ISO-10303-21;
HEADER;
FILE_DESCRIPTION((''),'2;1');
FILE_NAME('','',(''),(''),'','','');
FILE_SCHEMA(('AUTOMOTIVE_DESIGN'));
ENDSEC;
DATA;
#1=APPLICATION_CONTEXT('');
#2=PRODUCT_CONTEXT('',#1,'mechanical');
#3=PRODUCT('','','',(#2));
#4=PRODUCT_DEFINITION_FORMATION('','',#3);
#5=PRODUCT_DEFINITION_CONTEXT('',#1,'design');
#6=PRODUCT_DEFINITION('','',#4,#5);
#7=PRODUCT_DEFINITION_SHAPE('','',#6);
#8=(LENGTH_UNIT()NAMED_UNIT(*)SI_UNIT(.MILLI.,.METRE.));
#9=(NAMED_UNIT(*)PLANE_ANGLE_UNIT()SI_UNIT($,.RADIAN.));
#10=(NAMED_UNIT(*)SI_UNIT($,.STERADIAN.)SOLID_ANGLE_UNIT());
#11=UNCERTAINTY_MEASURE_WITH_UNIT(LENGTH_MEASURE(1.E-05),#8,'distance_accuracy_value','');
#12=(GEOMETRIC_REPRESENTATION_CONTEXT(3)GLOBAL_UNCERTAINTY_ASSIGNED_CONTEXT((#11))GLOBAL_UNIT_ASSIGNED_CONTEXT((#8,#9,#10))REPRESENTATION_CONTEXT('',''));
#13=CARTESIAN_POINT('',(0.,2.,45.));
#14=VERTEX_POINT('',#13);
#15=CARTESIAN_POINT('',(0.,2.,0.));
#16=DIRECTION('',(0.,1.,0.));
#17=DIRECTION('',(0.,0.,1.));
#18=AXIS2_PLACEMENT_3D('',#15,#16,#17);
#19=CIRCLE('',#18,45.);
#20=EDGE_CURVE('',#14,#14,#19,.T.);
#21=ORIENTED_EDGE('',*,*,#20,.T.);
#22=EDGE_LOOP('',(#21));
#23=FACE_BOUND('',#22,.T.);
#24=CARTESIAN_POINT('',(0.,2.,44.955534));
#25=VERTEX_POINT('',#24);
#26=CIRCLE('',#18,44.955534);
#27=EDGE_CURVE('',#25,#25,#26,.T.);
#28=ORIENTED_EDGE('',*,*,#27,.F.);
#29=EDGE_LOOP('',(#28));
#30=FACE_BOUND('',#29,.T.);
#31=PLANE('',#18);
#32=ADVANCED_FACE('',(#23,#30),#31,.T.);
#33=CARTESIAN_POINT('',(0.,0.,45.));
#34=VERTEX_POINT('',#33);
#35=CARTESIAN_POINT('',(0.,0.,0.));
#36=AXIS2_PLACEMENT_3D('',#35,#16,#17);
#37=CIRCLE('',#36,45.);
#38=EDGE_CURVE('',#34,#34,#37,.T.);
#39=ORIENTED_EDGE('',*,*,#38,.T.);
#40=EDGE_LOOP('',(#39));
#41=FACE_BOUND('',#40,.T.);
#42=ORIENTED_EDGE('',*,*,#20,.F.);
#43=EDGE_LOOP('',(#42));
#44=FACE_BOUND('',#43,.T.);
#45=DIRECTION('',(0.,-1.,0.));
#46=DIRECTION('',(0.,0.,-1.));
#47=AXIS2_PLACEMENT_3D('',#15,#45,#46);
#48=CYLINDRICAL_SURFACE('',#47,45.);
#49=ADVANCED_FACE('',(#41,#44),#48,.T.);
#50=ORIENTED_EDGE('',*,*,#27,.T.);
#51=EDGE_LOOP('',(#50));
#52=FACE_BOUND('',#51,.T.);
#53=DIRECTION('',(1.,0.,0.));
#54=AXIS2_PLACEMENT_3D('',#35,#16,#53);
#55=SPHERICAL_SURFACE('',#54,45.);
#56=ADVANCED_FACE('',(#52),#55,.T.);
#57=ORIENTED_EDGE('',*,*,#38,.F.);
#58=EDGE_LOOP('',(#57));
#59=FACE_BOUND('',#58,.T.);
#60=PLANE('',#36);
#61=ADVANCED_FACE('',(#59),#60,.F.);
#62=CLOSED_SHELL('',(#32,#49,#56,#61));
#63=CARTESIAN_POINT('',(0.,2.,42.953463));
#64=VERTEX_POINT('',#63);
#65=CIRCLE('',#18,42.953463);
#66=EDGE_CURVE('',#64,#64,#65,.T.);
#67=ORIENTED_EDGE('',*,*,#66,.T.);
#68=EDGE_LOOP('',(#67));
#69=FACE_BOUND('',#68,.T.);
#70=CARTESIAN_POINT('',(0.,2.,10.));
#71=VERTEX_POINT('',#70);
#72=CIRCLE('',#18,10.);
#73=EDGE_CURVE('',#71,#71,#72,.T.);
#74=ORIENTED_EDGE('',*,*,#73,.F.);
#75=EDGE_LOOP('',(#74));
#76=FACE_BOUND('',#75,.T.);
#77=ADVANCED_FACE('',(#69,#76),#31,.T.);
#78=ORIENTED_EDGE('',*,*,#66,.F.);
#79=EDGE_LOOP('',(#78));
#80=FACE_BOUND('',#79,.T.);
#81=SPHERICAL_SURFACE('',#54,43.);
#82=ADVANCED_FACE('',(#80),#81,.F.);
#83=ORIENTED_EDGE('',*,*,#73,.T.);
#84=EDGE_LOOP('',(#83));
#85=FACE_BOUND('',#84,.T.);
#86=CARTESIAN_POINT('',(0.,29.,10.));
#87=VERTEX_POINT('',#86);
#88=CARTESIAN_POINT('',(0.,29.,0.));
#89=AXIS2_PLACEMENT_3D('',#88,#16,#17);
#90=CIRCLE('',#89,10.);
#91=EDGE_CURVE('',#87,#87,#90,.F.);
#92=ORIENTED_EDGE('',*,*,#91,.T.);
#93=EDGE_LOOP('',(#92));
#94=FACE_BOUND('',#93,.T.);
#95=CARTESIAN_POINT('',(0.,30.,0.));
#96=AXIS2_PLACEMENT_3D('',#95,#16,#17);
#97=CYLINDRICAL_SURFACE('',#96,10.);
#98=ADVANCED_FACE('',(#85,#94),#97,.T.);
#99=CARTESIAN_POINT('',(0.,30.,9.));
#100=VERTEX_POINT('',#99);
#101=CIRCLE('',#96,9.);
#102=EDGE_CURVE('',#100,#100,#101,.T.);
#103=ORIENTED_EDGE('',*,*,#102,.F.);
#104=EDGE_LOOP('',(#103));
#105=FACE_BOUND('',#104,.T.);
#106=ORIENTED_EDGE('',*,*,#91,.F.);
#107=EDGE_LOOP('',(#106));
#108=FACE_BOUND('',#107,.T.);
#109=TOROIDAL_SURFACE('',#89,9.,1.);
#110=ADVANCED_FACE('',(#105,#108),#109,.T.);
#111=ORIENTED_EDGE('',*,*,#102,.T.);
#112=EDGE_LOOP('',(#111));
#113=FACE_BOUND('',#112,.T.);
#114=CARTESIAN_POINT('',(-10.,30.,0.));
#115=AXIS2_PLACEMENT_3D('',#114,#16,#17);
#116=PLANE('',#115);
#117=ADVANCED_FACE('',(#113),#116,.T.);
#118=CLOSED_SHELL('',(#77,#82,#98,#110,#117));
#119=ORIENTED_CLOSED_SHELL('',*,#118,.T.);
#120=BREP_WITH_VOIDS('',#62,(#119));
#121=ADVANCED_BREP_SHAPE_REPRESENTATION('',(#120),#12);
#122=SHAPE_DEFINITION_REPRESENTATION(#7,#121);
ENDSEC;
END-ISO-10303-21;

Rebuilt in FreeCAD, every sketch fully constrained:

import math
import FreeCAD as App
import Part
import Sketcher

V = App.Vector
Q = App.Units.Quantity


def edges_at(feature, points):
    """Names of the edges that pass closest to the given points."""
    edges = feature.Shape.Edges
    near = lambda p: min(range(len(edges)), key=lambda i: edges[i].distToShape(Part.Vertex(*p))[0])
    return sorted({f"Edge{near(p) + 1}" for p in points})


def faces_at(feature, points):
    """Names of the faces that lie closest to the given points."""
    faces = feature.Shape.Faces
    near = lambda p: min(range(len(faces)), key=lambda i: faces[i].distToShape(Part.Vertex(*p))[0])
    return sorted({f"Face{near(p) + 1}" for p in points})


def add_polygon(sketch, points):
    """Adds a closed chain of lines whose ends are joined by coincident constraints."""
    first, n = sketch.GeometryCount, len(points)
    for a, b in zip(points, points[1:] + points[:1]):
        sketch.addGeometry(Part.LineSegment(App.Vector(*a, 0), App.Vector(*b, 0)), False)
    for i in range(n):
        sketch.addConstraint(Sketcher.Constraint("Coincident", first + i, 2, first + (i + 1) % n, 1))

doc = App.newDocument("Part")
body = doc.addObject("PartDesign::Body", "Body")

# Sketch on XY plane
sketch1 = body.newObject("Sketcher::SketchObject", "Sketch")
sketch1.AttachmentSupport = (doc.getObject("XY_Plane"), [""])
sketch1.MapMode = "FlatFace"
sketch1.addGeometry([
    Part.LineSegment(V(0, 45, 0), V(0, 0, 0)),
    Part.LineSegment(V(0, 0, 0), V(45, 0, 0)),
    Part.ArcOfCircle(Part.Circle(V(0, 0, 0), V(0, 0, 1), 45), math.radians(0), math.radians(90)),
], False)
sketch1.addConstraint([
    Sketcher.Constraint("Coincident", 0, 2, 1, 1),
    Sketcher.Constraint("Coincident", 1, 2, 2, 1),
    Sketcher.Constraint("Coincident", 2, 2, 0, 1),
    Sketcher.Constraint("Vertical", 0),
    Sketcher.Constraint("Horizontal", 1),
    Sketcher.Constraint("Coincident", 2, 3, -1, 1),
    Sketcher.Constraint("Coincident", 0, 2, -1, 1),
    Sketcher.Constraint("Radius", 2, Q("45 mm")),
])
revolution = body.newObject("PartDesign::Revolution", "Revolution")
revolution.Profile = sketch1
revolution.ReferenceAxis = (sketch1, ["V_Axis"])
revolution.Angle = 360
doc.recompute()

thickness = body.newObject("PartDesign::Thickness", "Thickness")
thickness.Base = (revolution, faces_at(revolution, [(0, 0, 0)]))
thickness.Value = 2
thickness.Reversed = True
thickness.Join = "Intersection"
body2 = doc.addObject("PartDesign::Body", "Body001")

# Sketch on XY plane
sketch2 = body2.newObject("Sketcher::SketchObject", "Sketch001")
sketch2.AttachmentSupport = (doc.getObject("XY_Plane001"), [""])
sketch2.MapMode = "FlatFace"
add_polygon(sketch2, [(-10, 30), (-10, 0), (0, 0), (0, 30)])  # lines 0-3
sketch2.addConstraint([
    Sketcher.Constraint("Vertical", 0),
    Sketcher.Constraint("Horizontal", 1),
    Sketcher.Constraint("Vertical", 2),
    Sketcher.Constraint("Horizontal", 3),
    Sketcher.Constraint("Coincident", 1, 2, -1, 1),
    Sketcher.Constraint("DistanceX", 1, 1, 1, 2, Q("10 mm")),
    Sketcher.Constraint("DistanceY", 0, 2, 0, 1, Q("30 mm")),
])
revolution2 = body2.newObject("PartDesign::Revolution", "Revolution001")
revolution2.Profile = sketch2
revolution2.ReferenceAxis = (sketch2, ["V_Axis"])
revolution2.Angle = 360
doc.recompute()

fillet = body2.newObject("PartDesign::Fillet", "Fillet")
fillet.Base = (revolution2, edges_at(revolution2, [(10, 30, 0)]))
fillet.Radius = 1
body.AllowCompound = True
doc.recompute()

boolean = body.newObject("PartDesign::Boolean", "Boolean")
boolean.Type = "Fuse"
boolean.addObjects([body2])

# Sketch on XZ plane
sketch3 = body.newObject("Sketcher::SketchObject", "Sketch002")
sketch3.AttachmentSupport = (doc.getObject("XZ_Plane"), [""])
sketch3.MapMode = "FlatFace"
sketch3.addGeometry(Part.Circle(V(0, 0, 0), V(0, 0, 1), 45), False)
sketch3.addConstraint([
    Sketcher.Constraint("Coincident", 0, 3, -1, 1),
    Sketcher.Constraint("Diameter", 0, Q("90 mm")),
])
pad1 = body.newObject("PartDesign::Pad", "Pad")
pad1.Profile = sketch3
pad1.Length = 2
pad1.Reversed = True

doc.recompute()
